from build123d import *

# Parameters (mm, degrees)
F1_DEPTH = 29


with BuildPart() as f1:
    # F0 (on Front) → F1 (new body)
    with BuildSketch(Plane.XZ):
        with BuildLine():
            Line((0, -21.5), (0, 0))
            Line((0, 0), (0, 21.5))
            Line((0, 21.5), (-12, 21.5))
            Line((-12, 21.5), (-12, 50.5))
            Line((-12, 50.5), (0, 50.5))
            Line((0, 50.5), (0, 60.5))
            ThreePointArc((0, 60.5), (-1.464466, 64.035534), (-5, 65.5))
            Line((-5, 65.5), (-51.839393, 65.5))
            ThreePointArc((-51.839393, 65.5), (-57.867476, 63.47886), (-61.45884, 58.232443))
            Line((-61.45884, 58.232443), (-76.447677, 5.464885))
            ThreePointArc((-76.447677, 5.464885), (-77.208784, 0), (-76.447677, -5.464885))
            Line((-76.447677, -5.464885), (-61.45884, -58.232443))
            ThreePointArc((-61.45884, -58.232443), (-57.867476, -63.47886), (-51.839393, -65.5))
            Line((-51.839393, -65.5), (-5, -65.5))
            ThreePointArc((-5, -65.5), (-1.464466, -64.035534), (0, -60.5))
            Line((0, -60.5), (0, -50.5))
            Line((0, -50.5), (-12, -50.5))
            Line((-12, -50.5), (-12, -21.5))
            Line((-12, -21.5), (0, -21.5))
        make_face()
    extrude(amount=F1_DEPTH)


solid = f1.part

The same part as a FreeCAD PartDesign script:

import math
import FreeCAD as App
import Part
import Sketcher

V = App.Vector
Q = App.Units.Quantity

doc = App.newDocument("Part")
body = doc.addObject("PartDesign::Body", "Body")

sketch1 = doc.addObject("Sketcher::SketchObject", "Sketch")
body.addObject(sketch1)
sketch1.AttachmentSupport = (doc.XZ_Plane, [""])
sketch1.MapMode = "FlatFace"
sketch1.addGeometry(Part.LineSegment(V(0, -21.5, 0), V(0, 21.5, 0)), False)
sketch1.addGeometry(Part.LineSegment(V(0, 21.5, 0), V(-12, 21.5, 0)), False)
sketch1.addGeometry(Part.LineSegment(V(-12, 21.5, 0), V(-12, 50.5, 0)), False)
sketch1.addGeometry(Part.LineSegment(V(-12, 50.5, 0), V(0, 50.5, 0)), False)
sketch1.addGeometry(Part.LineSegment(V(0, 50.5, 0), V(0, 60.5, 0)), False)
sketch1.addGeometry(Part.ArcOfCircle(Part.Circle(V(-5, 60.5, 0), V(0, 0, 1), 5), math.radians(-0.000004), math.radians(90.000004)), False)
sketch1.addGeometry(Part.LineSegment(V(-5, 65.5, 0), V(-51.839393, 65.5, 0)), False)
sketch1.addGeometry(Part.ArcOfCircle(Part.Circle(V(-51.839392, 55.499998, 0), V(0, 0, 1), 10.000002), math.radians(90.000008), math.radians(164.142577)), False)
sketch1.addGeometry(Part.LineSegment(V(-61.45884, 58.232443, 0), V(-76.447677, 5.464885, 0)), False)
sketch1.addGeometry(Part.ArcOfCircle(Part.Circle(V(-57.208802, 0, 0), V(0, 0, 1), 19.999982), math.radians(164.142575), math.radians(195.857425)), False)
sketch1.addGeometry(Part.LineSegment(V(-76.447677, -5.464885, 0), V(-61.45884, -58.232443, 0)), False)
sketch1.addGeometry(Part.ArcOfCircle(Part.Circle(V(-51.839392, -55.499998, 0), V(0, 0, 1), 10.000002), math.radians(-164.142577), math.radians(-90.000008)), False)
sketch1.addGeometry(Part.LineSegment(V(-51.839393, -65.5, 0), V(-5, -65.5, 0)), False)
sketch1.addGeometry(Part.ArcOfCircle(Part.Circle(V(-5, -60.5, 0), V(0, 0, 1), 5), math.radians(-90.000004), math.radians(0.000004)), False)
sketch1.addGeometry(Part.LineSegment(V(0, -60.5, 0), V(0, -50.5, 0)), False)
sketch1.addGeometry(Part.LineSegment(V(0, -50.5, 0), V(-12, -50.5, 0)), False)
sketch1.addGeometry(Part.LineSegment(V(-12, -50.5, 0), V(-12, -21.5, 0)), False)
sketch1.addGeometry(Part.LineSegment(V(-12, -21.5, 0), V(0, -21.5, 0)), False)
sketch1.addConstraint(Sketcher.Constraint("Coincident", 0, 2, 1, 1))
sketch1.addConstraint(Sketcher.Constraint("Coincident", 1, 2, 2, 1))
sketch1.addConstraint(Sketcher.Constraint("Coincident", 2, 2, 3, 1))
sketch1.addConstraint(Sketcher.Constraint("Coincident", 3, 2, 4, 1))
sketch1.addConstraint(Sketcher.Constraint("Coincident", 4, 2, 5, 1))
sketch1.addConstraint(Sketcher.Constraint("Coincident", 5, 2, 6, 1))
sketch1.addConstraint(Sketcher.Constraint("Coincident", 6, 2, 7, 1))
sketch1.addConstraint(Sketcher.Constraint("Coincident", 7, 2, 8, 1))
sketch1.addConstraint(Sketcher.Constraint("Coincident", 8, 2, 9, 1))
sketch1.addConstraint(Sketcher.Constraint("Coincident", 9, 2, 10, 1))
sketch1.addConstraint(Sketcher.Constraint("Coincident", 10, 2, 11, 1))
sketch1.addConstraint(Sketcher.Constraint("Coincident", 11, 2, 12, 1))
sketch1.addConstraint(Sketcher.Constraint("Coincident", 12, 2, 13, 1))
sketch1.addConstraint(Sketcher.Constraint("Coincident", 13, 2, 14, 1))
sketch1.addConstraint(Sketcher.Constraint("Coincident", 14, 2, 15, 1))
sketch1.addConstraint(Sketcher.Constraint("Coincident", 15, 2, 16, 1))
sketch1.addConstraint(Sketcher.Constraint("Coincident", 16, 2, 17, 1))
sketch1.addConstraint(Sketcher.Constraint("Coincident", 17, 2, 0, 1))
sketch1.addConstraint(Sketcher.Constraint("Vertical", 0))
sketch1.addConstraint(Sketcher.Constraint("Horizontal", 1))
sketch1.addConstraint(Sketcher.Constraint("Vertical", 2))
sketch1.addConstraint(Sketcher.Constraint("Horizontal", 3))
sketch1.addConstraint(Sketcher.Constraint("Vertical", 4))
sketch1.addConstraint(Sketcher.Constraint("Horizontal", 6))
sketch1.addConstraint(Sketcher.Constraint("Horizontal", 12))
sketch1.addConstraint(Sketcher.Constraint("Vertical", 14))
sketch1.addConstraint(Sketcher.Constraint("Horizontal", 15))
sketch1.addConstraint(Sketcher.Constraint("Vertical", 16))
sketch1.addConstraint(Sketcher.Constraint("Horizontal", 17))
sketch1.addConstraint(Sketcher.Constraint("PointOnObject", 9, 3, -1))
sketch1.addConstraint(Sketcher.Constraint("PointOnObject", 0, 2, -2))
sketch1.addConstraint(Sketcher.Constraint("PointOnObject", 3, 2, -2))
sketch1.addConstraint(Sketcher.Constraint("PointOnObject", 13, 2, -2))
sketch1.addConstraint(Sketcher.Constraint("Radius", 5, Q("5 mm")))
sketch1.addConstraint(Sketcher.Constraint("Radius", 13, Q("5 mm")))
sketch1.addConstraint(Sketcher.Constraint("DistanceX", 1, 2, 1, 1, Q("12 mm")))
sketch1.addConstraint(Sketcher.Constraint("DistanceX", 15, 2, 15, 1, Q("12 mm")))
sketch1.addConstraint(Sketcher.Constraint("DistanceY", 0, 1, 0, 2, Q("43 mm")))
sketch1.addConstraint(Sketcher.Constraint("DistanceY", 2, 1, 2, 2, Q("29 mm")))
sketch1.addConstraint(Sketcher.Constraint("DistanceY", 4, 1, 4, 2, Q("10 mm")))
sketch1.addConstraint(Sketcher.Constraint("DistanceY", 14, 1, 14, 2, Q("10 mm")))
sketch1.addConstraint(Sketcher.Constraint("DistanceY", 16, 1, 16, 2, Q("29 mm")))
sketch1.addConstraint(Sketcher.Constraint("DistanceX", 5, 2, -1, 1, Q("5 mm")))
sketch1.addConstraint(Sketcher.Constraint("DistanceX", 12, 2, -1, 1, Q("5 mm")))
sketch1.addConstraint(Sketcher.Constraint("DistanceY", 13, 3, 5, 3, Q("121.000001 mm")))
sketch1.addConstraint(Sketcher.Constraint("DistanceY", 0, 2, 5, 3, Q("39 mm")))
sketch1.addConstraint(Sketcher.Constraint("DistanceY", -1, 1, 5, 3, Q("60.5 mm")))
sketch1.addConstraint(Sketcher.Constraint("Radius", 9, Q("19.999982 mm")))
sketch1.addConstraint(Sketcher.Constraint("Radius", 7, Q("10.000002 mm")))
sketch1.addConstraint(Sketcher.Constraint("Radius", 11, Q("10.000002 mm")))
sketch1.addConstraint(Sketcher.Constraint("DistanceX", 6, 2, 6, 1, Q("46.839393 mm")))
sketch1.addConstraint(Sketcher.Constraint("DistanceX", 12, 1, 12, 2, Q("46.839393 mm")))
sketch1.addConstraint(Sketcher.Constraint("DistanceX", 7, 3, -1, 1, Q("51.839392 mm")))
sketch1.addConstraint(Sketcher.Constraint("DistanceX", 11, 3, -1, 1, Q("51.839392 mm")))
sketch1.addConstraint(Sketcher.Constraint("DistanceX", 7, 2, -1, 1, Q("61.45884 mm")))
sketch1.addConstraint(Sketcher.Constraint("DistanceX", 10, 2, -1, 1, Q("61.45884 mm")))
sketch1.addConstraint(Sketcher.Constraint("DistanceX", 9, 3, 7, 3, Q("5.369411 mm")))
sketch1.addConstraint(Sketcher.Constraint("DistanceY", 9, 2, 8, 2, Q("10.92977 mm")))
sketch1.addConstraint(Sketcher.Constraint("DistanceY", 10, 2, 8, 2, Q("63.697328 mm")))
pad1 = doc.addObject("PartDesign::Pad", "Pad")
body.addObject(pad1)
pad1.Profile = sketch1
pad1.Length = 29

doc.recompute()
